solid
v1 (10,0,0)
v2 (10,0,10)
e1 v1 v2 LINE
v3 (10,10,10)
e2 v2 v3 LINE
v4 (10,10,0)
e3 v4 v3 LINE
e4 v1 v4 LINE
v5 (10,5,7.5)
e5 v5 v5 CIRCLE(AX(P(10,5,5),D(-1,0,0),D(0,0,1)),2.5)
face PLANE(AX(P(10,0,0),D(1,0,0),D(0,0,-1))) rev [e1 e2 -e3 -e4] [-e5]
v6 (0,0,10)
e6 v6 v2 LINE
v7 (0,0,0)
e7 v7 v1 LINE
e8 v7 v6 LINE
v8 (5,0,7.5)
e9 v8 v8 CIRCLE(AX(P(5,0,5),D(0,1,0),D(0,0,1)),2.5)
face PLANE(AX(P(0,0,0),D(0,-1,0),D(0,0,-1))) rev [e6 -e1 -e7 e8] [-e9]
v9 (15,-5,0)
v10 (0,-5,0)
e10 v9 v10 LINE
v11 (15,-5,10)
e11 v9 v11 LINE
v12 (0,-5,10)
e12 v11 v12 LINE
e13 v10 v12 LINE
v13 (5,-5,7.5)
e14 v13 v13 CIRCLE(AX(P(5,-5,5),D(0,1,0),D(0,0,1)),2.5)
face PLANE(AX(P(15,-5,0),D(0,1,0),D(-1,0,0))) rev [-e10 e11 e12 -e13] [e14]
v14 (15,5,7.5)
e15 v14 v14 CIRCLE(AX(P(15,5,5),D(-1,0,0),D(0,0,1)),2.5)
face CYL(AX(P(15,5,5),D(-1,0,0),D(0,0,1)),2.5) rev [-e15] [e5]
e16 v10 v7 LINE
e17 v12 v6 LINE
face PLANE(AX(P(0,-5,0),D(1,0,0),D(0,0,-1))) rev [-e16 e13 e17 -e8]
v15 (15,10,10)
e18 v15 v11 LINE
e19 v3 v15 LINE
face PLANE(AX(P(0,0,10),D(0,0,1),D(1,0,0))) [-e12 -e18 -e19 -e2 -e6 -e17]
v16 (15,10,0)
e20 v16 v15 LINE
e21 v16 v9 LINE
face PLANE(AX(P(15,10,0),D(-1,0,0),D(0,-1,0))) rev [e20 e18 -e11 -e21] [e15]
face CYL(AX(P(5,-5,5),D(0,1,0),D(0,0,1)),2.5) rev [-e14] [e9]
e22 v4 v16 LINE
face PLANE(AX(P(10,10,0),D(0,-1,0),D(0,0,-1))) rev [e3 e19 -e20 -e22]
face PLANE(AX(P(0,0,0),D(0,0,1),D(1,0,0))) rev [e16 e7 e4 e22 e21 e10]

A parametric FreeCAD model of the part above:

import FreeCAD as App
import Part
import Sketcher

V = App.Vector
Q = App.Units.Quantity

doc = App.newDocument("Part")
body = doc.addObject("PartDesign::Body", "Body")

sketch1 = body.newObject("Sketcher::SketchObject", "Sketch")
sketch1.AttachmentSupport = (doc.getObject("XY_Plane"), [""])
sketch1.MapMode = "FlatFace"
sketch1.addGeometry([
    Part.LineSegment(V(0, 0, 0), V(10, 0, 0)),
    Part.LineSegment(V(10, 0, 0), V(10, 10, 0)),
    Part.LineSegment(V(10, 10, 0), V(15, 10, 0)),
    Part.LineSegment(V(15, 10, 0), V(15, -5, 0)),
    Part.LineSegment(V(15, -5, 0), V(0, -5, 0)),
    Part.LineSegment(V(0, -5, 0), V(0, 0, 0)),
], False)
sketch1.addConstraint([
    Sketcher.Constraint("Coincident", 0, 2, 1, 1),
    Sketcher.Constraint("Coincident", 1, 2, 2, 1),
    Sketcher.Constraint("Coincident", 2, 2, 3, 1),
    Sketcher.Constraint("Coincident", 3, 2, 4, 1),
    Sketcher.Constraint("Coincident", 4, 2, 5, 1),
    Sketcher.Constraint("Coincident", 5, 2, 0, 1),
    Sketcher.Constraint("Horizontal", 0),
    Sketcher.Constraint("Vertical", 1),
    Sketcher.Constraint("Horizontal", 2),
    Sketcher.Constraint("Vertical", 3),
    Sketcher.Constraint("Horizontal", 4),
    Sketcher.Constraint("Vertical", 5),
    Sketcher.Constraint("Coincident", 5, 2, -1, 1),
    Sketcher.Constraint("Equal", 0, 1),
    Sketcher.Constraint("Equal", 4, 3),
    Sketcher.Constraint("DistanceX", 0, 1, 0, 2, Q("10 mm")),
    Sketcher.Constraint("DistanceX", 2, 1, 2, 2, Q("5 mm")),
])
pad1 = body.newObject("PartDesign::Pad", "Pad")
pad1.Profile = sketch1
pad1.Length = 10

sketch2 = body.newObject("Sketcher::SketchObject", "Sketch001")
sketch2.AttachmentSupport = (doc.getObject("YZ_Plane"), [""])
sketch2.MapMode = "FlatFace"
sketch2.AttachmentOffset = App.Placement(V(0, 0, 10), App.Rotation())
sketch2.addGeometry(Part.Circle(V(5, 5, 0), V(0, 0, 1), 2.5), False)
sketch2.addConstraint([
    Sketcher.Constraint("Diameter", 0, Q("5 mm")),
    Sketcher.Constraint("DistanceX", -1, 1, 0, 3, Q("5 mm")),
    Sketcher.Constraint("DistanceY", -1, 1, 0, 3, Q("5 mm")),
])
pocket1 = body.newObject("PartDesign::Pocket", "Pocket")
pocket1.Profile = sketch2
pocket1.Length = 5
pocket1.Reversed = True

sketch3 = body.newObject("Sketcher::SketchObject", "Sketch002")
sketch3.AttachmentSupport = (doc.getObject("XZ_Plane"), [""])
sketch3.MapMode = "FlatFace"
sketch3.addGeometry(Part.Circle(V(5, 5, 0), V(0, 0, 1), 2.5), False)
sketch3.addConstraint([
    Sketcher.Constraint("Diameter", 0, Q("5 mm")),
    Sketcher.Constraint("DistanceX", -1, 1, 0, 3, Q("5 mm")),
    Sketcher.Constraint("DistanceY", -1, 1, 0, 3, Q("5 mm")),
])
pocket2 = body.newObject("PartDesign::Pocket", "Pocket001")
pocket2.Profile = sketch3
pocket2.Length = 5
pocket2.Reversed = True

doc.recompute()
